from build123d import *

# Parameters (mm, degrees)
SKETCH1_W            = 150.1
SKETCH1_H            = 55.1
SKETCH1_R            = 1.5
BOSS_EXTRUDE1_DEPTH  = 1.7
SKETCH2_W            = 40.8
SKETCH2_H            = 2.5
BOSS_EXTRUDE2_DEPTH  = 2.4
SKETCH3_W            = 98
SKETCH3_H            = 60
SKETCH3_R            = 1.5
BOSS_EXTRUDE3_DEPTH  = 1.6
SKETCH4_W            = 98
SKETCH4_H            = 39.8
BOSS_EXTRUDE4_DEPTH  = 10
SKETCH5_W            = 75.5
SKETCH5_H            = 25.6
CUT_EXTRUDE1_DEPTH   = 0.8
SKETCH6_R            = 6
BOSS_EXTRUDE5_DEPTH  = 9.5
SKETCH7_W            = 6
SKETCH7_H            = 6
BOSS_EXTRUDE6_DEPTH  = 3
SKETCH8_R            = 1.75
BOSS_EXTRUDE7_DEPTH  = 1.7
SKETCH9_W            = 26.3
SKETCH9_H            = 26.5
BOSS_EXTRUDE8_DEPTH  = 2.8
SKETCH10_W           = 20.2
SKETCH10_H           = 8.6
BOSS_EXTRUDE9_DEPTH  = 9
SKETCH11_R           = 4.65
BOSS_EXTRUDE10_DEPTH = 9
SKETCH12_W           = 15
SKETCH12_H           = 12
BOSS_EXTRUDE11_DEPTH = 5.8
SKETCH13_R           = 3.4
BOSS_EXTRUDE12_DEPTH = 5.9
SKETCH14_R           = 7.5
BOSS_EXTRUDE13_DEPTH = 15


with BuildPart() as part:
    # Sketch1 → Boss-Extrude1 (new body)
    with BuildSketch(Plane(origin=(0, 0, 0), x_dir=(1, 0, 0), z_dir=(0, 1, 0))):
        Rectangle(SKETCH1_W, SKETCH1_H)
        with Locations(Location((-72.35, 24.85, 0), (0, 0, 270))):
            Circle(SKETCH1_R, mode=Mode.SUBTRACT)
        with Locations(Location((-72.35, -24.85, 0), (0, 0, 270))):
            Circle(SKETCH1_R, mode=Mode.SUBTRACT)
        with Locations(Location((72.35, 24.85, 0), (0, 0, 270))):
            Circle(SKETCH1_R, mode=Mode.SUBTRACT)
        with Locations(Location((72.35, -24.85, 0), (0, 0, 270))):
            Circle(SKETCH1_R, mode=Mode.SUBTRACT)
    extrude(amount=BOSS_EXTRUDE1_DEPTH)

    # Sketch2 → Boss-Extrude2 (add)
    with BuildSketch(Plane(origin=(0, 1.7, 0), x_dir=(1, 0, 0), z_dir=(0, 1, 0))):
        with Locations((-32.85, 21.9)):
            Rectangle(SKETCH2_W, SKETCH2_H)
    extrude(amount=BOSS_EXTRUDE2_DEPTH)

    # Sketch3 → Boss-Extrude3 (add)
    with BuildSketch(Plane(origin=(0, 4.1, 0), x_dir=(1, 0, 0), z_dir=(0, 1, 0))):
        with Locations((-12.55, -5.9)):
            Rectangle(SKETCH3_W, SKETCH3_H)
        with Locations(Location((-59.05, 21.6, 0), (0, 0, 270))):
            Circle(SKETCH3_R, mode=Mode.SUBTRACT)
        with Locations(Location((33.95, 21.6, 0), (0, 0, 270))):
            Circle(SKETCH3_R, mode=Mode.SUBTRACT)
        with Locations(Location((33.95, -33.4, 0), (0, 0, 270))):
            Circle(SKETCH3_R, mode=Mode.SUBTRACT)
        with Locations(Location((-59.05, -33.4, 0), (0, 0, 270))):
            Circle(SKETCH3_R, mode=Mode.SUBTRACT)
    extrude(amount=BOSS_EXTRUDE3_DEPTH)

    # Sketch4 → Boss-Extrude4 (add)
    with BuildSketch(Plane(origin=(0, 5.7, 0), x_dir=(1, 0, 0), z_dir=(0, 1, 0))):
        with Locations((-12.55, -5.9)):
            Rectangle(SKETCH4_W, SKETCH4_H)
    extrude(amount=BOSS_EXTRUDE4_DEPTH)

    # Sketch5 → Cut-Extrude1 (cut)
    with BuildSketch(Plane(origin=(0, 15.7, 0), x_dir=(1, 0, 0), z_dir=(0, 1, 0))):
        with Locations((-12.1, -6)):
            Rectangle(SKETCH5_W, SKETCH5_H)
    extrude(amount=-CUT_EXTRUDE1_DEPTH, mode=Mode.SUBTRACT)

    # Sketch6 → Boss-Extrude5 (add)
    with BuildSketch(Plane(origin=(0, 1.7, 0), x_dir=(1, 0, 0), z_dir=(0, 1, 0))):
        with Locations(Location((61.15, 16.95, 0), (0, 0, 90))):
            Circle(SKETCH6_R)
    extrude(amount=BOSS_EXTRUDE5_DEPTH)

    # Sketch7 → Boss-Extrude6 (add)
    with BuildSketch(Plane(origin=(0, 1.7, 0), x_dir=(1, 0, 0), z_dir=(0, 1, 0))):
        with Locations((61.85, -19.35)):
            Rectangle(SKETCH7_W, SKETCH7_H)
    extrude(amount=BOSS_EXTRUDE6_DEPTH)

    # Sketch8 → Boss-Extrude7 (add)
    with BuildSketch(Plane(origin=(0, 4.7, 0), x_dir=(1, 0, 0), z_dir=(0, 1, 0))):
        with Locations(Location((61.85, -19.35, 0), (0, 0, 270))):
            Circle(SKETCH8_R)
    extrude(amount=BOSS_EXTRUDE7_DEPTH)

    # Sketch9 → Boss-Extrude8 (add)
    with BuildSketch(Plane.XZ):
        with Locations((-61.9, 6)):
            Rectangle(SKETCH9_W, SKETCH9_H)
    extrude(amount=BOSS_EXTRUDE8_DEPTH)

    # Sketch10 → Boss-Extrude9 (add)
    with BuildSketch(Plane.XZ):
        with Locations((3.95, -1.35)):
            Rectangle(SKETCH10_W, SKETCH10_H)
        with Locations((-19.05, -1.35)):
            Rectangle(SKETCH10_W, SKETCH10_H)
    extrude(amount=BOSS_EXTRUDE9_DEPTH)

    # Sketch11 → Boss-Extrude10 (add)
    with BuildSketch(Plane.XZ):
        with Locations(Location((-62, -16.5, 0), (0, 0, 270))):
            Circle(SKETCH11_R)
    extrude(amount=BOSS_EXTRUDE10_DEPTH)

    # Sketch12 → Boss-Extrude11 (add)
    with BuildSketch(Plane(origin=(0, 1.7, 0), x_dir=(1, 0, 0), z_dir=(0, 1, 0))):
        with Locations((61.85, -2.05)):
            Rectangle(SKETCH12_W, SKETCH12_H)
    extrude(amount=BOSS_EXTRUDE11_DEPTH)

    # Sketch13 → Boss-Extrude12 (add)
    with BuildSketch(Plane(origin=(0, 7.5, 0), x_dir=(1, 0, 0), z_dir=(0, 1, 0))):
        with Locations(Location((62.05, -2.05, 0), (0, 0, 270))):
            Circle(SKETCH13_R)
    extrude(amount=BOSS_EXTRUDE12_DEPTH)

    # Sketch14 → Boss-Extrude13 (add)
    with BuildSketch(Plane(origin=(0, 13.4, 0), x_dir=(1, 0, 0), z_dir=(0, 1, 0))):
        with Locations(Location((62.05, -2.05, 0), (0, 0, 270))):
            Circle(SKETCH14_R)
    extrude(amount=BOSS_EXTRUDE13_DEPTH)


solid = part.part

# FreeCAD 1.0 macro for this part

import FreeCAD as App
import Part
import Sketcher

V = App.Vector
Q = App.Units.Quantity


def add_polygon(sketch, points):
    """Adds a closed chain of lines whose ends are joined by coincident constraints."""
    first, n = sketch.GeometryCount, len(points)
    for a, b in zip(points, points[1:] + points[:1]):
        sketch.addGeometry(Part.LineSegment(App.Vector(*a, 0), App.Vector(*b, 0)), False)
    for i in range(n):
        sketch.addConstraint(Sketcher.Constraint("Coincident", first + i, 2, first + (i + 1) % n, 1))

doc = App.newDocument("Part")
params = doc.addObject("Spreadsheet::Sheet", "Params")
for row, (alias, value) in enumerate([
    ("sketch1_diameter", "3 mm"),
    ("sketch1_width", "150.1 mm"),
    ("sketch1_height", "55.1 mm"),
    ("pad1_length", "1.7 mm"),
    ("sketch2_width", "40.8 mm"),
    ("sketch2_height", "2.5 mm"),
    ("pad2_length", "2.4 mm"),
    ("sketch3_diameter", "3 mm"),
    ("sketch3_width", "98 mm"),
    ("sketch3_height", "60 mm"),
    ("pad3_length", "1.6 mm"),
    ("sketch4_width", "98 mm"),
    ("sketch4_height", "39.8 mm"),
    ("pad4_length", "10 mm"),
    ("sketch5_width", "75.5 mm"),
    ("sketch5_height", "25.6 mm"),
    ("pocket1_length", "0.8 mm"),
    ("sketch6_diameter", "12 mm"),
    ("pad5_length", "9.5 mm"),
    ("sketch7_width", "6 mm"),
    ("pad6_length", "3 mm"),
    ("sketch8_diameter", "3.5 mm"),
    ("pad7_length", "1.7 mm"),
    ("sketch9_width", "26.3 mm"),
    ("sketch9_height", "26.5 mm"),
    ("pad8_length", "2.8 mm"),
    ("sketch10_width", "20.2 mm"),
    ("sketch10_height", "8.6 mm"),
    ("pad9_length", "9 mm"),
    ("sketch11_diameter", "9.3 mm"),
    ("pad10_length", "9 mm"),
    ("sketch12_width", "15 mm"),
    ("sketch12_height", "12 mm"),
    ("pad11_length", "5.8 mm"),
    ("sketch13_diameter", "6.8 mm"),
    ("pad12_length", "5.9 mm"),
    ("sketch14_diameter", "15 mm"),
    ("pad13_length", "15 mm"),
], start=1):
    params.set(f"A{row}", alias)
    params.set(f"B{row}", "=" + value)
    params.setAlias(f"B{row}", alias)

body = doc.addObject("PartDesign::Body", "Body")

sketch1 = doc.addObject("Sketcher::SketchObject", "Sketch")
body.addObject(sketch1)
sketch1.AttachmentSupport = (doc.XZ_Plane, [""])
sketch1.MapMode = "FlatFace"
add_polygon(sketch1, [(-75, -27.6), (-75, 27.6), (75, 27.6), (75, -27.6)])
sketch1.addGeometry(Part.Circle(V(-72.3, 24.9, 0), V(0, 0, 1), 1.5), False)
sketch1.addGeometry(Part.Circle(V(72.3, 24.9, 0), V(0, 0, 1), 1.5), False)
sketch1.addGeometry(Part.Circle(V(-72.3, -24.9, 0), V(0, 0, 1), 1.5), False)
sketch1.addGeometry(Part.Circle(V(72.3, -24.9, 0), V(0, 0, 1), 1.5), False)
sketch1.addConstraint([
    Sketcher.Constraint("Vertical", 0),
    Sketcher.Constraint("Horizontal", 1),
    Sketcher.Constraint("Vertical", 2),
    Sketcher.Constraint("Horizontal", 3),
    Sketcher.Constraint("Equal", 4, 5),
    Sketcher.Constraint("Equal", 5, 6),
    Sketcher.Constraint("Equal", 6, 7),
    Sketcher.Constraint("Symmetric", 5, 3, 6, 3, -1, 1),
    Sketcher.Constraint("Symmetric", 4, 3, 7, 3, -1, 1),
    Sketcher.Constraint("Symmetric", 0, 2, 2, 2, -1, 1),
    Sketcher.Constraint("Symmetric", 4, 3, 5, 3, -2),
    Sketcher.Constraint("Diameter", 4, Q("3 mm")),
    Sketcher.Constraint("DistanceX", 1, 1, 1, 2, Q("150.1 mm")),
    Sketcher.Constraint("DistanceY", 0, 1, 0, 2, Q("55.1 mm")),
    Sketcher.Constraint("DistanceX", 4, 3, 5, 3, Q("144.7 mm")),
    Sketcher.Constraint("DistanceY", 6, 3, 4, 3, Q("49.7 mm")),
])
sketch1.setExpression("Constraints[15]", "Params.sketch1_diameter")
sketch1.setExpression("Constraints[16]", "Params.sketch1_width")
sketch1.setExpression("Constraints[17]", "Params.sketch1_height")
pad1 = doc.addObject("PartDesign::Pad", "Pad")
body.addObject(pad1)
pad1.Profile = sketch1
pad1.setExpression("Length", "Params.pad1_length")
pad1.Reversed = True

sketch2 = doc.addObject("Sketcher::SketchObject", "Sketch001")
body.addObject(sketch2)
sketch2.AttachmentSupport = (doc.XZ_Plane, [""])
sketch2.MapMode = "FlatFace"
sketch2.AttachmentOffset = App.Placement(V(0, 0, -1.7), App.Rotation())
add_polygon(sketch2, [(-53.2, -23.1), (-53.2, -20.6), (-12.4, -20.6), (-12.4, -23.1)])
sketch2.addConstraint([
    Sketcher.Constraint("Vertical", 0),
    Sketcher.Constraint("Horizontal", 1),
    Sketcher.Constraint("Vertical", 2),
    Sketcher.Constraint("Horizontal", 3),
    Sketcher.Constraint("DistanceX", 1, 1, 1, 2, Q("40.8 mm")),
    Sketcher.Constraint("DistanceY", 0, 1, 0, 2, Q("2.5 mm")),
    Sketcher.Constraint("DistanceX", 0, 2, -1, 1, Q("53.25 mm")),
    Sketcher.Constraint("DistanceY", 0, 2, -1, 1, Q("20.65 mm")),
])
sketch2.setExpression("Constraints[8]", "Params.sketch2_width")
sketch2.setExpression("Constraints[9]", "Params.sketch2_height")
pad2 = doc.addObject("PartDesign::Pad", "Pad001")
body.addObject(pad2)
pad2.Profile = sketch2
pad2.setExpression("Length", "Params.pad2_length")
pad2.Reversed = True

sketch3 = doc.addObject("Sketcher::SketchObject", "Sketch002")
body.addObject(sketch3)
sketch3.AttachmentSupport = (doc.XZ_Plane, [""])
sketch3.MapMode = "FlatFace"
sketch3.AttachmentOffset = App.Placement(V(0, 0, -4.1), App.Rotation())
add_polygon(sketch3, [(-61.5, -24.1), (-61.5, 35.9), (36.5, 35.9), (36.5, -24.1)])
sketch3.addGeometry(Part.Circle(V(-59, 33.4, 0), V(0, 0, 1), 1.5), False)
sketch3.addGeometry(Part.Circle(V(34, 33.4, 0), V(0, 0, 1), 1.5), False)
sketch3.addGeometry(Part.Circle(V(-59, -21.6, 0), V(0, 0, 1), 1.5), False)
sketch3.addGeometry(Part.Circle(V(34, -21.6, 0), V(0, 0, 1), 1.5), False)
sketch3.addConstraint([
    Sketcher.Constraint("Vertical", 0),
    Sketcher.Constraint("Horizontal", 1),
    Sketcher.Constraint("Vertical", 2),
    Sketcher.Constraint("Horizontal", 3),
    Sketcher.Constraint("Equal", 4, 5),
    Sketcher.Constraint("Equal", 5, 6),
    Sketcher.Constraint("Equal", 6, 7),
    Sketcher.Constraint("Horizontal", 4, 3, 5, 3),
    Sketcher.Constraint("Horizontal", 6, 3, 7, 3),
    Sketcher.Constraint("Vertical", 4, 3, 6, 3),
    Sketcher.Constraint("Vertical", 5, 3, 7, 3),
    Sketcher.Constraint("Diameter", 4, Q("3 mm")),
    Sketcher.Constraint("DistanceX", 1, 1, 1, 2, Q("98 mm")),
    Sketcher.Constraint("DistanceY", 0, 1, 0, 2, Q("60 mm")),
    Sketcher.Constraint("DistanceX", 4, 3, 5, 3, Q("93 mm")),
    Sketcher.Constraint("DistanceY", 6, 3, 4, 3, Q("55 mm")),
    Sketcher.Constraint("DistanceY", -1, 1, 4, 3, Q("33.4 mm")),
    Sketcher.Constraint("DistanceY", -1, 1, 0, 2, Q("35.9 mm")),
    Sketcher.Constraint("DistanceX", 0, 2, 4, 3, Q("2.5 mm")),
    Sketcher.Constraint("DistanceX", 4, 3, -1, 1, Q("59.05 mm")),
])
sketch3.setExpression("Constraints[15]", "Params.sketch3_diameter")
sketch3.setExpression("Constraints[16]", "Params.sketch3_width")
sketch3.setExpression("Constraints[17]", "Params.sketch3_height")
pad3 = doc.addObject("PartDesign::Pad", "Pad002")
body.addObject(pad3)
pad3.Profile = sketch3
pad3.setExpression("Length", "Params.pad3_length")
pad3.Reversed = True

sketch4 = doc.addObject("Sketcher::SketchObject", "Sketch003")
body.addObject(sketch4)
sketch4.AttachmentSupport = (doc.XZ_Plane, [""])
sketch4.MapMode = "FlatFace"
sketch4.AttachmentOffset = App.Placement(V(0, 0, -5.7), App.Rotation())
add_polygon(sketch4, [(-62, -14), (-62, 26), (36, 26), (36, -14)])
sketch4.addConstraint([
    Sketcher.Constraint("Vertical", 0),
    Sketcher.Constraint("Horizontal", 1),
    Sketcher.Constraint("Vertical", 2),
    Sketcher.Constraint("Horizontal", 3),
    Sketcher.Constraint("DistanceX", 1, 1, 1, 2, Q("98 mm")),
    Sketcher.Constraint("DistanceY", 0, 1, 0, 2, Q("39.8 mm")),
    Sketcher.Constraint("DistanceY", 2, 2, -1, 1, Q("14 mm")),
    Sketcher.Constraint("DistanceX", 0, 2, -1, 1, Q("61.55 mm")),
])
sketch4.setExpression("Constraints[8]", "Params.sketch4_width")
sketch4.setExpression("Constraints[9]", "Params.sketch4_height")
pad4 = doc.addObject("PartDesign::Pad", "Pad003")
body.addObject(pad4)
pad4.Profile = sketch4
pad4.setExpression("Length", "Params.pad4_length")
pad4.Reversed = True

sketch5 = doc.addObject("Sketcher::SketchObject", "Sketch004")
body.addObject(sketch5)
sketch5.AttachmentSupport = (doc.XZ_Plane, [""])
sketch5.MapMode = "FlatFace"
sketch5.AttachmentOffset = App.Placement(V(0, 0, -15.7), App.Rotation())
add_polygon(sketch5, [(-50, -7), (-50, 19), (26, 19), (26, -7)])
sketch5.addConstraint([
    Sketcher.Constraint("Vertical", 0),
    Sketcher.Constraint("Horizontal", 1),
    Sketcher.Constraint("Vertical", 2),
    Sketcher.Constraint("Horizontal", 3),
    Sketcher.Constraint("DistanceX", 1, 1, 1, 2, Q("75.5 mm")),
    Sketcher.Constraint("DistanceY", 0, 1, 0, 2, Q("25.6 mm")),
    Sketcher.Constraint("DistanceY", -1, 1, 0, 2, Q("18.8 mm")),
    Sketcher.Constraint("DistanceX", 0, 2, -1, 1, Q("49.85 mm")),
])
sketch5.setExpression("Constraints[8]", "Params.sketch5_width")
sketch5.setExpression("Constraints[9]", "Params.sketch5_height")
pocket1 = doc.addObject("PartDesign::Pocket", "Pocket")
body.addObject(pocket1)
pocket1.Profile = sketch5
pocket1.setExpression("Length", "Params.pocket1_length")
pocket1.Reversed = True

sketch6 = doc.addObject("Sketcher::SketchObject", "Sketch005")
body.addObject(sketch6)
sketch6.AttachmentSupport = (doc.XZ_Plane, [""])
sketch6.MapMode = "FlatFace"
sketch6.AttachmentOffset = App.Placement(V(0, 0, -1.7), App.Rotation())
sketch6.addGeometry(Part.Circle(V(61, -17, 0), V(0, 0, 1), 6), False)
sketch6.addConstraint([
    Sketcher.Constraint("Diameter", 0, Q("12 mm")),
    Sketcher.Constraint("DistanceX", -1, 1, 0, 3, Q("61.15 mm")),
    Sketcher.Constraint("DistanceY", 0, 3, -1, 1, Q("16.95 mm")),
])
sketch6.setExpression("Constraints[0]", "Params.sketch6_diameter")
pad5 = doc.addObject("PartDesign::Pad", "Pad004")
body.addObject(pad5)
pad5.Profile = sketch6
pad5.setExpression("Length", "Params.pad5_length")
pad5.Reversed = True

sketch7 = doc.addObject("Sketcher::SketchObject", "Sketch006")
body.addObject(sketch7)
sketch7.AttachmentSupport = (doc.XZ_Plane, [""])
sketch7.MapMode = "FlatFace"
sketch7.AttachmentOffset = App.Placement(V(0, 0, -1.7), App.Rotation())
add_polygon(sketch7, [(59, 16), (59, 22), (65, 22), (65, 16)])
sketch7.addConstraint([
    Sketcher.Constraint("Vertical", 0),
    Sketcher.Constraint("Horizontal", 1),
    Sketcher.Constraint("Vertical", 2),
    Sketcher.Constraint("Horizontal", 3),
    Sketcher.Constraint("Equal", 3, 0),
    Sketcher.Constraint("DistanceX", 1, 1, 1, 2, Q("6 mm")),
    Sketcher.Constraint("DistanceX", -1, 1, 0, 2, Q("58.85 mm")),
    Sketcher.Constraint("DistanceY", -1, 1, 0, 2, Q("22.35 mm")),
])
sketch7.setExpression("Constraints[9]", "Params.sketch7_width")
pad6 = doc.addObject("PartDesign::Pad", "Pad005")
body.addObject(pad6)
pad6.Profile = sketch7
pad6.setExpression("Length", "Params.pad6_length")
pad6.Reversed = True

sketch8 = doc.addObject("Sketcher::SketchObject", "Sketch007")
body.addObject(sketch8)
sketch8.AttachmentSupport = (doc.XZ_Plane, [""])
sketch8.MapMode = "FlatFace"
sketch8.AttachmentOffset = App.Placement(V(0, 0, -4.7), App.Rotation())
sketch8.addGeometry(Part.Circle(V(61.9, 19.4, 0), V(0, 0, 1), 1.8), False)
sketch8.addConstraint([
    Sketcher.Constraint("Diameter", 0, Q("3.5 mm")),
    Sketcher.Constraint("DistanceX", -1, 1, 0, 3, Q("61.85 mm")),
    Sketcher.Constraint("DistanceY", -1, 1, 0, 3, Q("19.35 mm")),
])
sketch8.setExpression("Constraints[0]", "Params.sketch8_diameter")
pad7 = doc.addObject("PartDesign::Pad", "Pad006")
body.addObject(pad7)
pad7.Profile = sketch8
pad7.setExpression("Length", "Params.pad7_length")
pad7.Reversed = True

sketch9 = doc.addObject("Sketcher::SketchObject", "Sketch008")
body.addObject(sketch9)
sketch9.AttachmentSupport = (doc.XZ_Plane, [""])
sketch9.MapMode = "FlatFace"
add_polygon(sketch9, [(-75, 19), (-75, -7), (-49, -7), (-49, 19)])
sketch9.addConstraint([
    Sketcher.Constraint("Vertical", 0),
    Sketcher.Constraint("Horizontal", 1),
    Sketcher.Constraint("Vertical", 2),
    Sketcher.Constraint("Horizontal", 3),
    Sketcher.Constraint("DistanceX", 1, 1, 1, 2, Q("26.3 mm")),
    Sketcher.Constraint("DistanceY", 0, 2, 0, 1, Q("26.5 mm")),
    Sketcher.Constraint("DistanceX", 0, 2, -1, 1, Q("75.05 mm")),
    Sketcher.Constraint("DistanceY", 0, 2, -1, 1, Q("7.25 mm")),
])
sketch9.setExpression("Constraints[8]", "Params.sketch9_width")
sketch9.setExpression("Constraints[9]", "Params.sketch9_height")
pad8 = doc.addObject("PartDesign::Pad", "Pad007")
body.addObject(pad8)
pad8.Profile = sketch9
pad8.setExpression("Length", "Params.pad8_length")

sketch10 = doc.addObject("Sketcher::SketchObject", "Sketch009")
body.addObject(sketch10)
sketch10.AttachmentSupport = (doc.XZ_Plane, [""])
sketch10.MapMode = "FlatFace"
add_polygon(sketch10, [(-6, 3), (-6, -6), (14, -6), (14, 3)])
add_polygon(sketch10, [(-29, 3), (-29, -6), (-9, -6), (-9, 3)])
sketch10.addConstraint([
    Sketcher.Constraint("Vertical", 0),
    Sketcher.Constraint("Horizontal", 1),
    Sketcher.Constraint("Vertical", 2),
    Sketcher.Constraint("Horizontal", 3),
    Sketcher.Constraint("Vertical", 4),
    Sketcher.Constraint("Horizontal", 5),
    Sketcher.Constraint("Vertical", 6),
    Sketcher.Constraint("Horizontal", 7),
    Sketcher.Constraint("Horizontal", 1, 2, 4, 2),
    Sketcher.Constraint("Horizontal", 3, 2, 6, 2),
    Sketcher.Constraint("Equal", 3, 5),
    Sketcher.Constraint("DistanceX", 1, 1, 1, 2, Q("20.2 mm")),
    Sketcher.Constraint("DistanceY", 0, 2, 0, 1, Q("8.6 mm")),
    Sketcher.Constraint("DistanceX", 4, 2, 0, 2, Q("23 mm")),
    Sketcher.Constraint("DistanceX", 0, 2, -1, 1, Q("6.15 mm")),
    Sketcher.Constraint("DistanceY", 0, 2, -1, 1, Q("5.65 mm")),
])
sketch10.setExpression("Constraints[19]", "Params.sketch10_width")
sketch10.setExpression("Constraints[20]", "Params.sketch10_height")
pad9 = doc.addObject("PartDesign::Pad", "Pad008")
body.addObject(pad9)
pad9.Profile = sketch10
pad9.setExpression("Length", "Params.pad9_length")

sketch11 = doc.addObject("Sketcher::SketchObject", "Sketch010")
body.addObject(sketch11)
sketch11.AttachmentSupport = (doc.XZ_Plane, [""])
sketch11.MapMode = "FlatFace"
sketch11.addGeometry(Part.Circle(V(-62, -16.5, 0), V(0, 0, 1), 4.7), False)
sketch11.addConstraint([
    Sketcher.Constraint("Diameter", 0, Q("9.3 mm")),
    Sketcher.Constraint("DistanceX", 0, 3, -1, 1, Q("62 mm")),
    Sketcher.Constraint("DistanceY", 0, 3, -1, 1, Q("16.5 mm")),
])
sketch11.setExpression("Constraints[0]", "Params.sketch11_diameter")
pad10 = doc.addObject("PartDesign::Pad", "Pad009")
body.addObject(pad10)
pad10.Profile = sketch11
pad10.setExpression("Length", "Params.pad10_length")

sketch12 = doc.addObject("Sketcher::SketchObject", "Sketch011")
body.addObject(sketch12)
sketch12.AttachmentSupport = (doc.XZ_Plane, [""])
sketch12.MapMode = "FlatFace"
sketch12.AttachmentOffset = App.Placement(V(0, 0, -1.7), App.Rotation())
add_polygon(sketch12, [(54, -4), (54, 8), (69, 8), (69, -4)])
sketch12.addConstraint([
    Sketcher.Constraint("Vertical", 0),
    Sketcher.Constraint("Horizontal", 1),
    Sketcher.Constraint("Vertical", 2),
    Sketcher.Constraint("Horizontal", 3),
    Sketcher.Constraint("DistanceX", 1, 1, 1, 2, Q("15 mm")),
    Sketcher.Constraint("DistanceY", 0, 1, 0, 2, Q("12 mm")),
    Sketcher.Constraint("DistanceX", -1, 1, 0, 2, Q("54.35 mm")),
    Sketcher.Constraint("DistanceY", -1, 1, 0, 2, Q("8.05 mm")),
])
sketch12.setExpression("Constraints[8]", "Params.sketch12_width")
sketch12.setExpression("Constraints[9]", "Params.sketch12_height")
pad11 = doc.addObject("PartDesign::Pad", "Pad010")
body.addObject(pad11)
pad11.Profile = sketch12
pad11.setExpression("Length", "Params.pad11_length")
pad11.Reversed = True

sketch13 = doc.addObject("Sketcher::SketchObject", "Sketch012")
body.addObject(sketch13)
sketch13.AttachmentSupport = (doc.XZ_Plane, [""])
sketch13.MapMode = "FlatFace"
sketch13.AttachmentOffset = App.Placement(V(0, 0, -7.5), App.Rotation())
sketch13.addGeometry(Part.Circle(V(62, 2, 0), V(0, 0, 1), 3.4), False)
sketch13.addConstraint([
    Sketcher.Constraint("Diameter", 0, Q("6.8 mm")),
    Sketcher.Constraint("DistanceX", -1, 1, 0, 3, Q("62.05 mm")),
    Sketcher.Constraint("DistanceY", -1, 1, 0, 3, Q("2.05 mm")),
])
sketch13.setExpression("Constraints[0]", "Params.sketch13_diameter")
pad12 = doc.addObject("PartDesign::Pad", "Pad011")
body.addObject(pad12)
pad12.Profile = sketch13
pad12.setExpression("Length", "Params.pad12_length")
pad12.Reversed = True

sketch14 = doc.addObject("Sketcher::SketchObject", "Sketch013")
body.addObject(sketch14)
sketch14.AttachmentSupport = (doc.XZ_Plane, [""])
sketch14.MapMode = "FlatFace"
sketch14.AttachmentOffset = App.Placement(V(0, 0, -13.4), App.Rotation())
sketch14.addGeometry(Part.Circle(V(62, 2, 0), V(0, 0, 1), 8), False)
sketch14.addConstraint([
    Sketcher.Constraint("Diameter", 0, Q("15 mm")),
    Sketcher.Constraint("DistanceX", -1, 1, 0, 3, Q("62.05 mm")),
    Sketcher.Constraint("DistanceY", -1, 1, 0, 3, Q("2.05 mm")),
])
sketch14.setExpression("Constraints[0]", "Params.sketch14_diameter")
pad13 = doc.addObject("PartDesign::Pad", "Pad012")
body.addObject(pad13)
pad13.Profile = sketch14
pad13.setExpression("Length", "Params.pad13_length")
pad13.Reversed = True

doc.recompute()
